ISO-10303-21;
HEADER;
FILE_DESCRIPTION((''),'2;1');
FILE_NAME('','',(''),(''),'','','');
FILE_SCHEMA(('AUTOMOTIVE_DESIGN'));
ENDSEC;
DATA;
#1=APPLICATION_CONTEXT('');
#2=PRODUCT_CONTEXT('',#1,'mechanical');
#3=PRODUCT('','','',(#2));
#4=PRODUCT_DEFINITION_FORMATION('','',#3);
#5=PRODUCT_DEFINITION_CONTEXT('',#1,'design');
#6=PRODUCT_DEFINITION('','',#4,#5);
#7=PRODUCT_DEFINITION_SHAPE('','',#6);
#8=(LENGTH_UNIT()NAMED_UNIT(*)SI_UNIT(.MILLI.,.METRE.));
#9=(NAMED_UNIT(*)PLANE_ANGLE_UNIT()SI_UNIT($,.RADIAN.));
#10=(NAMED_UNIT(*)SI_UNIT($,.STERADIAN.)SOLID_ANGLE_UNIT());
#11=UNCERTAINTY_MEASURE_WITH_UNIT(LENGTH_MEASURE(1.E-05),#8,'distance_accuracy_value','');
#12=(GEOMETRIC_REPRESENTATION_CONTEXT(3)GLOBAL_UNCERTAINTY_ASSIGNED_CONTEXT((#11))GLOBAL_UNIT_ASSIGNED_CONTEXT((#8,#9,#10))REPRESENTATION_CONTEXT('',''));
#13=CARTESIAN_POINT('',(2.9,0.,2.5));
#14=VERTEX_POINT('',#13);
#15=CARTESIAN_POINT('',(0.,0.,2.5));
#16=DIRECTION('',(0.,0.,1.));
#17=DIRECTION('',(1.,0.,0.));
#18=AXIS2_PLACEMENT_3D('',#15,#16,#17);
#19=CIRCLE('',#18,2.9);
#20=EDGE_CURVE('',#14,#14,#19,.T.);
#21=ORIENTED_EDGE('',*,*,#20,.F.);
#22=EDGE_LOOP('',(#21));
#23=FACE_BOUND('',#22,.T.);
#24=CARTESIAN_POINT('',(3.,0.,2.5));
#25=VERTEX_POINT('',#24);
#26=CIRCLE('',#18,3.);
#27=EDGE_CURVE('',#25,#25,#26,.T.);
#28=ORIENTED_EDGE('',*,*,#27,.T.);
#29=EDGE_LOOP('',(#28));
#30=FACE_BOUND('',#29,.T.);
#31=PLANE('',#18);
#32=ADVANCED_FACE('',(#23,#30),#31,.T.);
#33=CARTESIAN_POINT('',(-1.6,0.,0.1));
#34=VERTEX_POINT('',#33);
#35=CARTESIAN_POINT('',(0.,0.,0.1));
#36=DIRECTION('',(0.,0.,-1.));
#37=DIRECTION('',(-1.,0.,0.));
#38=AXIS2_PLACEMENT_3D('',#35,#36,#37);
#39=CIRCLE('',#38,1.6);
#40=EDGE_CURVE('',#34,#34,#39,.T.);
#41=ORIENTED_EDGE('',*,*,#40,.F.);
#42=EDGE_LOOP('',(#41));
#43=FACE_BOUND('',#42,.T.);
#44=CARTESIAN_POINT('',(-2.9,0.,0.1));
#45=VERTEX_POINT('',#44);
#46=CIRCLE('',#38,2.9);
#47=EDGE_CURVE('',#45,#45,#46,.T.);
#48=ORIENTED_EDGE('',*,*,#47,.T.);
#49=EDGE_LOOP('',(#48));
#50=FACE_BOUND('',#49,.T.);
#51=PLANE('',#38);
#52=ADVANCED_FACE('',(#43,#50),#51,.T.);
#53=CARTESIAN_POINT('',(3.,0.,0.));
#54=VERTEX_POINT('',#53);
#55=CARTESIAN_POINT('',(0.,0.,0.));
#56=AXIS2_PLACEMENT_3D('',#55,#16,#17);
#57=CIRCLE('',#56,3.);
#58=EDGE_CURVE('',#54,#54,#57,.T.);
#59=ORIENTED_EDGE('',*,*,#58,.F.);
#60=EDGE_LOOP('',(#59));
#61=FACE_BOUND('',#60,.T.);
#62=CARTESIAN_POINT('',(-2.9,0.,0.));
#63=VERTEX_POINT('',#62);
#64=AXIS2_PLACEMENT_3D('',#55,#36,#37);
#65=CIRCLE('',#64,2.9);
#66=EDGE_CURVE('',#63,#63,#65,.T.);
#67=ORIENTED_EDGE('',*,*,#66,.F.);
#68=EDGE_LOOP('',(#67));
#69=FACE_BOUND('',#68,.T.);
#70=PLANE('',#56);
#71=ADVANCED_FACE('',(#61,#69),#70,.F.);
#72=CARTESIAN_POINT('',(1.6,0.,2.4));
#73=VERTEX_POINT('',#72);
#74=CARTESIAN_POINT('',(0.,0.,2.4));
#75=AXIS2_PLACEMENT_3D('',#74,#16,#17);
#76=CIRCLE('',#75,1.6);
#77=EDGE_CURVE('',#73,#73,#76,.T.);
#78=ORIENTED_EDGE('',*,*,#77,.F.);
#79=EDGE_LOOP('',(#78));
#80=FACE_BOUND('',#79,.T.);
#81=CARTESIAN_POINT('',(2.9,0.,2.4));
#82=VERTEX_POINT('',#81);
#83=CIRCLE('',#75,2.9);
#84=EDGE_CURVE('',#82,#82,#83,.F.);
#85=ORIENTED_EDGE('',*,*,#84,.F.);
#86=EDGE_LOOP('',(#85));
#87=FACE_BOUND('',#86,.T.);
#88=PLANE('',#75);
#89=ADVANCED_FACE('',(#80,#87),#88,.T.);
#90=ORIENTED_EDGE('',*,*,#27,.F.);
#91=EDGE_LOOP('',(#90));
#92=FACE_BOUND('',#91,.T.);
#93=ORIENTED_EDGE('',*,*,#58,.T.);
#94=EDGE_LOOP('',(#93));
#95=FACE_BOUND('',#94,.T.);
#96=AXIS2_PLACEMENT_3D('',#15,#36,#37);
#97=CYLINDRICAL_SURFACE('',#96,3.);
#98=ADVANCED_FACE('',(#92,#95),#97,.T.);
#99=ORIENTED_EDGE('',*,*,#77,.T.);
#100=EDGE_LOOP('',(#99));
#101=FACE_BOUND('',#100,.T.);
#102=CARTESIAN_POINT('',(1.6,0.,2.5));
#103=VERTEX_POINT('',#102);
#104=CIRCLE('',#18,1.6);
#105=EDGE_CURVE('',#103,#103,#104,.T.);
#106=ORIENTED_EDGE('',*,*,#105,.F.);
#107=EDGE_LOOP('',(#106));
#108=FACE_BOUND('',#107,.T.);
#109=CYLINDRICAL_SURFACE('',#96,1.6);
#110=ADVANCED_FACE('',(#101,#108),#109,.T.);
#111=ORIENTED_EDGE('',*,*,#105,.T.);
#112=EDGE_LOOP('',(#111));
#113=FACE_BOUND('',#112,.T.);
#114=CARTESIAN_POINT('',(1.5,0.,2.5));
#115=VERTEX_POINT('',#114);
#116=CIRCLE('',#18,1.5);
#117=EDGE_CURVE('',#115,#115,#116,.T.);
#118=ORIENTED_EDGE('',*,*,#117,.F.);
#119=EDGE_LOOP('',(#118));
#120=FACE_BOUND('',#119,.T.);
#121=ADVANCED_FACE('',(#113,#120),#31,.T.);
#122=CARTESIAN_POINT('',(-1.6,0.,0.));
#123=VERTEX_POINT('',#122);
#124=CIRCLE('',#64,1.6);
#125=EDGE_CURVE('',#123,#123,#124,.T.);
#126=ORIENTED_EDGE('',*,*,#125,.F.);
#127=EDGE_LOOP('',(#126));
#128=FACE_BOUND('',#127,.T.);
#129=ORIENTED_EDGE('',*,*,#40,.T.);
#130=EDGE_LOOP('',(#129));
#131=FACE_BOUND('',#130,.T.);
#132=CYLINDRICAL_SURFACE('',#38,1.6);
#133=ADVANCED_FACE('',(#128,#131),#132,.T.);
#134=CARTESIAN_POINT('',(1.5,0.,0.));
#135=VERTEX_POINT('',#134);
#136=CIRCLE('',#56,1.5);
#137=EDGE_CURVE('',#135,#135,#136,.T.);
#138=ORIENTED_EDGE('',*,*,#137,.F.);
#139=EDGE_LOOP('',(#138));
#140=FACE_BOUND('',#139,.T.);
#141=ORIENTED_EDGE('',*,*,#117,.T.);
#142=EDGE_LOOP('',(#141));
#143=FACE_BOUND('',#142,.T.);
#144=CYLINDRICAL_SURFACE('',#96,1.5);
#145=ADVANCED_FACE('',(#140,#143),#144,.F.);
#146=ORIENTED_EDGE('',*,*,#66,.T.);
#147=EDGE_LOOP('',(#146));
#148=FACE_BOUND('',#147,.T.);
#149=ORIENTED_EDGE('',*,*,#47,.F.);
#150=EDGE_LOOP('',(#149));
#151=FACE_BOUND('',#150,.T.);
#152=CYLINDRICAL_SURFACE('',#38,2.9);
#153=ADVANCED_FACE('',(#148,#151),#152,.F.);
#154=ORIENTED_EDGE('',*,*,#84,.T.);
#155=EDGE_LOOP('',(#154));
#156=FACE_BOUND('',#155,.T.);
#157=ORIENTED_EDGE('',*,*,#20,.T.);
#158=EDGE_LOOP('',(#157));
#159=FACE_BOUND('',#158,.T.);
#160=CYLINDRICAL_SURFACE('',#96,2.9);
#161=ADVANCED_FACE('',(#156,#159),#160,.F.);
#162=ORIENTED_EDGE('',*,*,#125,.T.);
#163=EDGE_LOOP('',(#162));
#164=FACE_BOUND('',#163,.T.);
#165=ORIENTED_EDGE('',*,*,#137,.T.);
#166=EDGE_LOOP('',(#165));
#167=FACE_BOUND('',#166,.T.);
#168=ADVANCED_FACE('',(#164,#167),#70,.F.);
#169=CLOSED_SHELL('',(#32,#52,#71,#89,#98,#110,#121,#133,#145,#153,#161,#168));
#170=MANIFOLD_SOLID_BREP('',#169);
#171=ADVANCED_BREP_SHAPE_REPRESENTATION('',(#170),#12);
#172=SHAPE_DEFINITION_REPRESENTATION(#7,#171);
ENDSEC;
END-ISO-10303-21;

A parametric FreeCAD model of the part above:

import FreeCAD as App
import Part
import Sketcher

doc = App.newDocument("Part")
body = doc.addObject("PartDesign::Body", "Body")

sketch1 = body.newObject("Sketcher::SketchObject", "Sketch")
sketch1.AttachmentSupport = (doc.getObject("XY_Plane"), [""])
sketch1.MapMode = "FlatFace"
sketch1.addGeometry([
    Part.Circle(App.Vector(0, 0, 0), App.Vector(0, 0, 1), 1.6),
    Part.Circle(App.Vector(0, 0, 0), App.Vector(0, 0, 1), 1.5),
], False)
sketch1.addConstraint([
    Sketcher.Constraint("Coincident", 0, 3, -1, 1),
    Sketcher.Constraint("Coincident", 1, 3, -1, 1),
    Sketcher.Constraint("Diameter", 1, 3.0),
    Sketcher.Constraint("Diameter", 0, 3.2),
])
pad1 = body.newObject("PartDesign::Pad", "Pad")
pad1.Profile = sketch1
pad1.Length = 2.5
body2 = doc.addObject("PartDesign::Body", "Body001")

sketch2 = body2.newObject("Sketcher::SketchObject", "Sketch001")
sketch2.AttachmentSupport = (doc.getObject("XY_Plane001"), [""])
sketch2.MapMode = "FlatFace"
sketch2.addGeometry([
    Part.Circle(App.Vector(0, 0, 0), App.Vector(0, 0, 1), 3),
    Part.Circle(App.Vector(0, 0, 0), App.Vector(0, 0, 1), 2.9),
], False)
sketch2.addConstraint([
    Sketcher.Constraint("Coincident", 0, 3, -1, 1),
    Sketcher.Constraint("Coincident", 1, 3, -1, 1),
    Sketcher.Constraint("Diameter", 0, 6.0),
    Sketcher.Constraint("Diameter", 1, 5.8),
])
pad2 = body2.newObject("PartDesign::Pad", "Pad001")
pad2.Profile = sketch2
pad2.Length = 2.5
body.AllowCompound = True
doc.recompute()

boolean = body.newObject("PartDesign::Boolean", "Boolean")
boolean.Type = "Fuse"
boolean.addObjects([body2])

sketch3 = body.newObject("Sketcher::SketchObject", "Sketch002")
sketch3.AttachmentSupport = (doc.getObject("XY_Plane"), [""])
sketch3.MapMode = "FlatFace"
sketch3.addGeometry([
    Part.Circle(App.Vector(0, 0, 0), App.Vector(0, 0, 1), 2.9),
    Part.Circle(App.Vector(0, 0, 0), App.Vector(0, 0, 1), 1.6),
], False)
sketch3.addConstraint([
    Sketcher.Constraint("Coincident", 0, 3, -1, 1),
    Sketcher.Constraint("Coincident", 1, 3, -1, 1),
    Sketcher.Constraint("Diameter", 0, 5.8),
    Sketcher.Constraint("Diameter", 1, 3.2),
])
pad3 = body.newObject("PartDesign::Pad", "Pad002")
pad3.Profile = sketch3
pad3.Length = 2.4

sketch4 = body.newObject("Sketcher::SketchObject", "Sketch003")
sketch4.AttachmentSupport = (doc.getObject("XY_Plane"), [""])
sketch4.MapMode = "FlatFace"
sketch4.addGeometry([
    Part.Circle(App.Vector(0, 0, 0), App.Vector(0, 0, 1), 2.9),
    Part.Circle(App.Vector(0, 0, 0), App.Vector(0, 0, 1), 1.6),
], False)
sketch4.addConstraint([
    Sketcher.Constraint("Coincident", 0, 3, -1, 1),
    Sketcher.Constraint("Coincident", 1, 3, -1, 1),
    Sketcher.Constraint("Diameter", 0, 5.8),
    Sketcher.Constraint("Diameter", 1, 3.2),
])
pocket1 = body.newObject("PartDesign::Pocket", "Pocket")
pocket1.Profile = sketch4
pocket1.Length = 0.1
pocket1.Reversed = True

doc.recompute()
